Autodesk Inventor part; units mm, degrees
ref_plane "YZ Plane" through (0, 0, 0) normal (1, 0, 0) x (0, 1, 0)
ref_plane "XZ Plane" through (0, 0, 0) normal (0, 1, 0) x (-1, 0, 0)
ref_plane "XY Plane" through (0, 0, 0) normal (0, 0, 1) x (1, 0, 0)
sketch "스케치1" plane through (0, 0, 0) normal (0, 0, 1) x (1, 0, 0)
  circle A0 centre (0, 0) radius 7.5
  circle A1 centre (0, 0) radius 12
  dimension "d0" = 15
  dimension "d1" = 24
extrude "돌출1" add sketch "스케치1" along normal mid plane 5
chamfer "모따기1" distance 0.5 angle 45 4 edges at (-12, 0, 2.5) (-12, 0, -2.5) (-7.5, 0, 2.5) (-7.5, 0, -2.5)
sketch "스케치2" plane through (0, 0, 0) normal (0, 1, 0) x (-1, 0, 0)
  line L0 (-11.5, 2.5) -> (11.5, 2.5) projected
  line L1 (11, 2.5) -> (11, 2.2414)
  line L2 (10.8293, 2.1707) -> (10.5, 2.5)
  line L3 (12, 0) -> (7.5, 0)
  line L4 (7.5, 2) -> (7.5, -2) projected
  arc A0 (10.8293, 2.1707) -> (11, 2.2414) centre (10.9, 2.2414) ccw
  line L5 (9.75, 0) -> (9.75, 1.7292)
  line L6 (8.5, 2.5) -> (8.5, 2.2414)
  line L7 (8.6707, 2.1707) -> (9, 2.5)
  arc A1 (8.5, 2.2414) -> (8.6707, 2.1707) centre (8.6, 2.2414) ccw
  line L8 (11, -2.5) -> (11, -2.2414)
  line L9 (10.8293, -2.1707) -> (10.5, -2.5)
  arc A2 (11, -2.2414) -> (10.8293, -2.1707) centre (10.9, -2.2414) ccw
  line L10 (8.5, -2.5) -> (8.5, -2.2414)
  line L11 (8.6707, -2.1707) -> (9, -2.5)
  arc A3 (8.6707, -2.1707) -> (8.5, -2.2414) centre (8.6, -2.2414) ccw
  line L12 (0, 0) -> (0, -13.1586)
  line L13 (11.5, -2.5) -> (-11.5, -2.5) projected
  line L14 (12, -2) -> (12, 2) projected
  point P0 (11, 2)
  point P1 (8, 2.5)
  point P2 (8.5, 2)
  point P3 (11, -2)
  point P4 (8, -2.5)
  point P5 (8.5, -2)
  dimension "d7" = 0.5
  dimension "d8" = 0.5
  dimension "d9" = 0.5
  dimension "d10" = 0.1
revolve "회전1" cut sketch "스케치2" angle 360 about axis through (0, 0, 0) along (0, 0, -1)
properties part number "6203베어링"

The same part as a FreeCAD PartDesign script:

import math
import FreeCAD as App
import Part
import Sketcher

V = App.Vector
Q = App.Units.Quantity


def edges_at(feature, points):
    """Names of the edges that pass closest to the given points."""
    edges = feature.Shape.Edges
    near = lambda p: min(range(len(edges)), key=lambda i: edges[i].distToShape(Part.Vertex(*p))[0])
    return sorted({f"Edge{near(p) + 1}" for p in points})

doc = App.newDocument("Part")
body = doc.addObject("PartDesign::Body", "Body")

sketch1 = doc.addObject("Sketcher::SketchObject", "Sketch")
body.addObject(sketch1)
sketch1.AttachmentSupport = (doc.XY_Plane, [""])
sketch1.MapMode = "FlatFace"
sketch1.addGeometry(Part.Circle(V(0, 0, 0), V(0, 0, 1), 12), False)
sketch1.addGeometry(Part.Circle(V(0, 0, 0), V(0, 0, 1), 8), False)
sketch1.addConstraint(Sketcher.Constraint("Coincident", 0, 3, -1, 1))
sketch1.addConstraint(Sketcher.Constraint("Coincident", 1, 3, -1, 1))
sketch1.addConstraint(Sketcher.Constraint("Diameter", 0, Q("24 mm")))
sketch1.addConstraint(Sketcher.Constraint("Diameter", 1, Q("15 mm")))
pad1 = doc.addObject("PartDesign::Pad", "Pad")
body.addObject(pad1)
pad1.Profile = sketch1
pad1.Length = 5
pad1.Midplane = True
doc.recompute()

chamfer = doc.addObject("PartDesign::Chamfer", "Chamfer")
body.addObject(chamfer)
chamfer.Base = (pad1, edges_at(pad1, [
    (-12, 0, 2.5),
    (-12, 0, -2.5),
    (-7.5, 0, 2.5),
    (-7.5, 0, -2.5),
]))
chamfer.Size = 0.5

sketch2 = doc.addObject("Sketcher::SketchObject", "Sketch001")
body.addObject(sketch2)
sketch2.AttachmentSupport = (doc.XZ_Plane, [""])
sketch2.MapMode = "FlatFace"
sketch2.addGeometry(Part.LineSegment(V(-11, 2.5, 0), V(-10.5, 2.5, 0)), False)
sketch2.addGeometry(Part.LineSegment(V(-10.5, 2.5, 0), V(-10.83, 2.17, 0)), False)
sketch2.addGeometry(Part.ArcOfCircle(Part.Circle(V(-10.9, 2.24, 0), V(0, 0, 1), 0.1), math.radians(180), math.radians(315)), False)
sketch2.addGeometry(Part.LineSegment(V(-11, 2.24, 0), V(-11, 2.5, 0)), False)
sketch2.addGeometry(Part.LineSegment(V(-9, 2.5, 0), V(-8.5, 2.5, 0)), False)
sketch2.addGeometry(Part.LineSegment(V(-8.5, 2.5, 0), V(-8.5, 2.24, 0)), False)
sketch2.addGeometry(Part.ArcOfCircle(Part.Circle(V(-8.6, 2.24, 0), V(0, 0, 1), 0.1), math.radians(-135), math.radians(0)), False)
sketch2.addGeometry(Part.LineSegment(V(-8.67, 2.17, 0), V(-9, 2.5, 0)), False)
sketch2.addGeometry(Part.LineSegment(V(-10.5, -2.5, 0), V(-11, -2.5, 0)), False)
sketch2.addGeometry(Part.LineSegment(V(-11, -2.5, 0), V(-11, -2.24, 0)), False)
sketch2.addGeometry(Part.ArcOfCircle(Part.Circle(V(-10.9, -2.24, 0), V(0, 0, 1), 0.1), math.radians(45), math.radians(180)), False)
sketch2.addGeometry(Part.LineSegment(V(-10.83, -2.17, 0), V(-10.5, -2.5, 0)), False)
sketch2.addGeometry(Part.LineSegment(V(-8.5, -2.5, 0), V(-9, -2.5, 0)), False)
sketch2.addGeometry(Part.LineSegment(V(-9, -2.5, 0), V(-8.67, -2.17, 0)), False)
sketch2.addGeometry(Part.ArcOfCircle(Part.Circle(V(-8.6, -2.24, 0), V(0, 0, 1), 0.1), math.radians(0), math.radians(135)), False)
sketch2.addGeometry(Part.LineSegment(V(-8.5, -2.24, 0), V(-8.5, -2.5, 0)), False)
sketch2.addConstraint(Sketcher.Constraint("Coincident", 0, 2, 1, 1))
sketch2.addConstraint(Sketcher.Constraint("Tangent", 1, 2, 2, 2))
sketch2.addConstraint(Sketcher.Constraint("Tangent", 2, 1, 3, 1))
sketch2.addConstraint(Sketcher.Constraint("Coincident", 3, 2, 0, 1))
sketch2.addConstraint(Sketcher.Constraint("Coincident", 4, 2, 5, 1))
sketch2.addConstraint(Sketcher.Constraint("Tangent", 5, 2, 6, 2))
sketch2.addConstraint(Sketcher.Constraint("Tangent", 6, 1, 7, 1))
sketch2.addConstraint(Sketcher.Constraint("Coincident", 7, 2, 4, 1))
sketch2.addConstraint(Sketcher.Constraint("Coincident", 8, 2, 9, 1))
sketch2.addConstraint(Sketcher.Constraint("Tangent", 9, 2, 10, 2))
sketch2.addConstraint(Sketcher.Constraint("Tangent", 10, 1, 11, 1))
sketch2.addConstraint(Sketcher.Constraint("Coincident", 11, 2, 8, 1))
sketch2.addConstraint(Sketcher.Constraint("Coincident", 12, 2, 13, 1))
sketch2.addConstraint(Sketcher.Constraint("Tangent", 13, 2, 14, 2))
sketch2.addConstraint(Sketcher.Constraint("Tangent", 14, 1, 15, 1))
sketch2.addConstraint(Sketcher.Constraint("Coincident", 15, 2, 12, 1))
sketch2.addConstraint(Sketcher.Constraint("Horizontal", 0))
sketch2.addConstraint(Sketcher.Constraint("Vertical", 3))
sketch2.addConstraint(Sketcher.Constraint("Horizontal", 4))
sketch2.addConstraint(Sketcher.Constraint("Vertical", 5))
sketch2.addConstraint(Sketcher.Constraint("Horizontal", 8))
sketch2.addConstraint(Sketcher.Constraint("Vertical", 9))
sketch2.addConstraint(Sketcher.Constraint("Horizontal", 12))
sketch2.addConstraint(Sketcher.Constraint("Vertical", 15))
sketch2.addConstraint(Sketcher.Constraint("Equal", 2, 6))
sketch2.addConstraint(Sketcher.Constraint("Equal", 6, 10))
sketch2.addConstraint(Sketcher.Constraint("Equal", 10, 14))
sketch2.addConstraint(Sketcher.Constraint("Symmetric", 2, 3, 10, 3, -1))
sketch2.addConstraint(Sketcher.Constraint("Symmetric", 6, 3, 14, 3, -1))
sketch2.addConstraint(Sketcher.Constraint("Symmetric", 0, 2, 11, 2, -1))
sketch2.addConstraint(Sketcher.Constraint("Symmetric", 7, 2, 12, 2, -1))
sketch2.addConstraint(Sketcher.Constraint("Perpendicular", 1, 7))
sketch2.addConstraint(Sketcher.Constraint("Parallel", 7, 11))
sketch2.addConstraint(Sketcher.Constraint("Horizontal", 2, 3, 6, 3))
sketch2.addConstraint(Sketcher.Constraint("Horizontal", 3, 2, 4, 2))
sketch2.addConstraint(Sketcher.Constraint("Radius", 2, Q("0.1 mm")))
sketch2.addConstraint(Sketcher.Constraint("DistanceX", 0, 1, 0, 2, Q("0.5 mm")))
sketch2.addConstraint(Sketcher.Constraint("DistanceX", 2, 1, -1, 1, Q("11 mm")))
sketch2.addConstraint(Sketcher.Constraint("DistanceX", 7, 2, -1, 1, Q("9 mm")))
sketch2.addConstraint(Sketcher.Constraint("DistanceY", -1, 1, 0, 2, Q("2.5 mm")))
groove = doc.addObject("PartDesign::Groove", "Groove")
body.addObject(groove)
groove.Profile = sketch2
groove.ReferenceAxis = (sketch2, ["V_Axis"])
groove.Angle = 360

doc.recompute()
